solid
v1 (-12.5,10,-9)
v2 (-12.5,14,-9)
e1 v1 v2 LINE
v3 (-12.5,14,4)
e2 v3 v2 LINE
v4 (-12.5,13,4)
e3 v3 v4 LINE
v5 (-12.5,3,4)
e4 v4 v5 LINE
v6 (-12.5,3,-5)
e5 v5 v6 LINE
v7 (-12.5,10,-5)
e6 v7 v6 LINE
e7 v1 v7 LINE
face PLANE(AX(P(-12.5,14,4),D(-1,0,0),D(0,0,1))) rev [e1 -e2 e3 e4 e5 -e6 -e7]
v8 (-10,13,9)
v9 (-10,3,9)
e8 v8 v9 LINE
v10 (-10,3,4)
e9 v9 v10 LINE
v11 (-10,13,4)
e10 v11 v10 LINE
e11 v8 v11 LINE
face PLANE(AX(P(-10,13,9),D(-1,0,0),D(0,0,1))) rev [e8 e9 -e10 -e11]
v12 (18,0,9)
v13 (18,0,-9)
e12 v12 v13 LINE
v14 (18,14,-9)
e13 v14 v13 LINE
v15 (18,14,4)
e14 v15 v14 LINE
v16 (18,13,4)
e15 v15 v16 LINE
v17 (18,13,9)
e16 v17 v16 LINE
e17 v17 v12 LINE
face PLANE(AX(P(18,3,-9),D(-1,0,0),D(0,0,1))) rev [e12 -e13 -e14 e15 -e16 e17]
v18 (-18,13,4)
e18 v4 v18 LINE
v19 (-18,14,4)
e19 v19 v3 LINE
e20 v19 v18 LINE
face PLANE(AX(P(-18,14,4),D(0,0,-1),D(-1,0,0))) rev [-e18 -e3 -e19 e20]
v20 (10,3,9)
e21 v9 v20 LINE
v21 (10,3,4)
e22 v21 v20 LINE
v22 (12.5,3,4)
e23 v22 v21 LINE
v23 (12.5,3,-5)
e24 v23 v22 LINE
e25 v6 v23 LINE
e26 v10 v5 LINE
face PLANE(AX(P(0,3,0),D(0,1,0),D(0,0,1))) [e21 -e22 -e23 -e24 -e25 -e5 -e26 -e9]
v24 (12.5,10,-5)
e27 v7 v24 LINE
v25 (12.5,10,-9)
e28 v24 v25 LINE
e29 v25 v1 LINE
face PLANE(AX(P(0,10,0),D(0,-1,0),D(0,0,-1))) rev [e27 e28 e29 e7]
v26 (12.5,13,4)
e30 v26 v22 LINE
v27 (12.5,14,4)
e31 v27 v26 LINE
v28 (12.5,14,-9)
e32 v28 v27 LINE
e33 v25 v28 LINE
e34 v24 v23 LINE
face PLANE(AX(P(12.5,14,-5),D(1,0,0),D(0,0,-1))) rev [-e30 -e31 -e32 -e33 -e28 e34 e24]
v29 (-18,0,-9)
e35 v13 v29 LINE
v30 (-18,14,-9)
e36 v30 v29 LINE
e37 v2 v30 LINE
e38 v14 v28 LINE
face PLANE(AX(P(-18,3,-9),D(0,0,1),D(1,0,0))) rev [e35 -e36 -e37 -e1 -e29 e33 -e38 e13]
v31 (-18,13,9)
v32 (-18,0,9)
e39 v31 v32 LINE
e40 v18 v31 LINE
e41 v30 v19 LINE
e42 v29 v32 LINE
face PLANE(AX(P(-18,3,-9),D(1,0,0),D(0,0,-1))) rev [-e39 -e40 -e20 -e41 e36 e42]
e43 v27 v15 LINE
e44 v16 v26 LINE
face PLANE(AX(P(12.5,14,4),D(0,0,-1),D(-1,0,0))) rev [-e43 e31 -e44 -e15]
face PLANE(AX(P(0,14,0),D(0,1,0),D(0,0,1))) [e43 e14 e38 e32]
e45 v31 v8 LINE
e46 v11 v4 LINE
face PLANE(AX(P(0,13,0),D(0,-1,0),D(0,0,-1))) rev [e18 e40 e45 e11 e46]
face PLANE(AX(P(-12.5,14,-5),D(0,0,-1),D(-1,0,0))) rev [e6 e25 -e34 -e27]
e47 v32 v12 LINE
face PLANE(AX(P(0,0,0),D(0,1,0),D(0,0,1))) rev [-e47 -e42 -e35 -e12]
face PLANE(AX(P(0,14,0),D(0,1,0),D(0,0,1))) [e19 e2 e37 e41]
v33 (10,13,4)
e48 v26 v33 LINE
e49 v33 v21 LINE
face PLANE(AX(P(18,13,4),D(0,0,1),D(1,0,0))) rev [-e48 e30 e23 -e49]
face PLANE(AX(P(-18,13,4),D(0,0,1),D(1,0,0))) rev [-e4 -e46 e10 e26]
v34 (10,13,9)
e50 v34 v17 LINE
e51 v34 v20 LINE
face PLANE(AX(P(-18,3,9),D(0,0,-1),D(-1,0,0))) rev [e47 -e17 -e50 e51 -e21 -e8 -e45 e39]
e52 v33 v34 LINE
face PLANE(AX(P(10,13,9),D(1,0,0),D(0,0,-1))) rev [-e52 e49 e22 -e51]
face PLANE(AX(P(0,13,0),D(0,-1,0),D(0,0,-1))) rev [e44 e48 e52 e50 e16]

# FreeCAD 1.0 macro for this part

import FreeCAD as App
import Part
import Sketcher

doc = App.newDocument("Part")
params = doc.addObject("Spreadsheet::Sheet", "Params")
for row, (alias, value) in enumerate([
    ("sketch1_width", "36 mm"),
    ("sketch1_height", "18 mm"),
    ("pad1_length", "3 mm"),
    ("sketch2_width", "8 mm"),
    ("sketch2_height", "5 mm"),
    ("pad2_length", "10 mm"),
    ("sketch3_width", "25 mm"),
    ("sketch3_width2", "36 mm"),
    ("sketch3_height", "13 mm"),
    ("sketch3_height2", "9 mm"),
    ("pad3_length", "11 mm"),
    ("sketch4_width", "25 mm"),
    ("sketch4_height", "4 mm"),
    ("pocket1_length", "4 mm"),
], start=1):
    params.set(f"A{row}", alias)
    params.set(f"B{row}", "=" + value)
    params.setAlias(f"B{row}", alias)

body = doc.addObject("PartDesign::Body", "Body")

sketch1 = body.newObject("Sketcher::SketchObject", "Sketch")
sketch1.AttachmentSupport = (doc.getObject("XZ_Plane"), [""])
sketch1.MapMode = "FlatFace"
sketch1.addGeometry(Part.LineSegment(App.Vector(-18, -9, 0), App.Vector(-18, 9, 0)), False)
sketch1.addGeometry(Part.LineSegment(App.Vector(-18, 9, 0), App.Vector(18, 9, 0)), False)
sketch1.addGeometry(Part.LineSegment(App.Vector(18, 9, 0), App.Vector(18, -9, 0)), False)
sketch1.addGeometry(Part.LineSegment(App.Vector(18, -9, 0), App.Vector(-18, -9, 0)), False)
sketch1.addConstraint(Sketcher.Constraint("Coincident", 0, 2, 1, 1))
sketch1.addConstraint(Sketcher.Constraint("Coincident", 1, 2, 2, 1))
sketch1.addConstraint(Sketcher.Constraint("Coincident", 2, 2, 3, 1))
sketch1.addConstraint(Sketcher.Constraint("Coincident", 3, 2, 0, 1))
sketch1.addConstraint(Sketcher.Constraint("Vertical", 0))
sketch1.addConstraint(Sketcher.Constraint("Horizontal", 1))
sketch1.addConstraint(Sketcher.Constraint("Vertical", 2))
sketch1.addConstraint(Sketcher.Constraint("Horizontal", 3))
sketch1.addConstraint(Sketcher.Constraint("Symmetric", 0, 2, 2, 2, -1, 1))
sketch1.addConstraint(Sketcher.Constraint("DistanceX", 1, 1, 1, 2, 36.0))
sketch1.addConstraint(Sketcher.Constraint("DistanceY", 0, 1, 0, 2, 18.0))
sketch1.setExpression("Constraints[9]", "Params.sketch1_width")
sketch1.setExpression("Constraints[10]", "Params.sketch1_height")
pad1 = body.newObject("PartDesign::Pad", "Pad")
pad1.Profile = sketch1
pad1.setExpression("Length", "Params.pad1_length")
pad1.Reversed = True

sketch2 = body.newObject("Sketcher::SketchObject", "Sketch001")
sketch2.AttachmentSupport = (doc.getObject("XZ_Plane"), [""])
sketch2.MapMode = "FlatFace"
sketch2.AttachmentOffset = App.Placement(App.Vector(0, 0, -3), App.Rotation())
sketch2.addGeometry(Part.LineSegment(App.Vector(-18, 4, 0), App.Vector(-18, 9, 0)), False)
sketch2.addGeometry(Part.LineSegment(App.Vector(-18, 9, 0), App.Vector(-10, 9, 0)), False)
sketch2.addGeometry(Part.LineSegment(App.Vector(-10, 9, 0), App.Vector(-10, 4, 0)), False)
sketch2.addGeometry(Part.LineSegment(App.Vector(-10, 4, 0), App.Vector(-18, 4, 0)), False)
sketch2.addGeometry(Part.LineSegment(App.Vector(10, 4, 0), App.Vector(10, 9, 0)), False)
sketch2.addGeometry(Part.LineSegment(App.Vector(10, 9, 0), App.Vector(18, 9, 0)), False)
sketch2.addGeometry(Part.LineSegment(App.Vector(18, 9, 0), App.Vector(18, 4, 0)), False)
sketch2.addGeometry(Part.LineSegment(App.Vector(18, 4, 0), App.Vector(10, 4, 0)), False)
sketch2.addConstraint(Sketcher.Constraint("Coincident", 0, 2, 1, 1))
sketch2.addConstraint(Sketcher.Constraint("Coincident", 1, 2, 2, 1))
sketch2.addConstraint(Sketcher.Constraint("Coincident", 2, 2, 3, 1))
sketch2.addConstraint(Sketcher.Constraint("Coincident", 3, 2, 0, 1))
sketch2.addConstraint(Sketcher.Constraint("Coincident", 4, 2, 5, 1))
sketch2.addConstraint(Sketcher.Constraint("Coincident", 5, 2, 6, 1))
sketch2.addConstraint(Sketcher.Constraint("Coincident", 6, 2, 7, 1))
sketch2.addConstraint(Sketcher.Constraint("Coincident", 7, 2, 4, 1))
sketch2.addConstraint(Sketcher.Constraint("Vertical", 0))
sketch2.addConstraint(Sketcher.Constraint("Horizontal", 1))
sketch2.addConstraint(Sketcher.Constraint("Vertical", 2))
sketch2.addConstraint(Sketcher.Constraint("Horizontal", 3))
sketch2.addConstraint(Sketcher.Constraint("Vertical", 4))
sketch2.addConstraint(Sketcher.Constraint("Horizontal", 5))
sketch2.addConstraint(Sketcher.Constraint("Vertical", 6))
sketch2.addConstraint(Sketcher.Constraint("Horizontal", 7))
sketch2.addConstraint(Sketcher.Constraint("Symmetric", 1, 2, 4, 2, -2))
sketch2.addConstraint(Sketcher.Constraint("Symmetric", 3, 2, 6, 2, -2))
sketch2.addConstraint(Sketcher.Constraint("DistanceX", 1, 1, 1, 2, 8.0))
sketch2.addConstraint(Sketcher.Constraint("DistanceY", 0, 1, 0, 2, 5.0))
sketch2.addConstraint(Sketcher.Constraint("DistanceX", 0, 2, -1, 1, 18.0))
sketch2.addConstraint(Sketcher.Constraint("DistanceY", -1, 1, 0, 2, 9.0))
sketch2.setExpression("Constraints[18]", "Params.sketch2_width")
sketch2.setExpression("Constraints[19]", "Params.sketch2_height")
pad2 = body.newObject("PartDesign::Pad", "Pad001")
pad2.Profile = sketch2
pad2.setExpression("Length", "Params.pad2_length")
pad2.Reversed = True

sketch3 = body.newObject("Sketcher::SketchObject", "Sketch002")
sketch3.AttachmentSupport = (doc.getObject("XZ_Plane"), [""])
sketch3.MapMode = "FlatFace"
sketch3.AttachmentOffset = App.Placement(App.Vector(0, 0, -3), App.Rotation())
sketch3.addGeometry(Part.LineSegment(App.Vector(-18, -9, 0), App.Vector(-18, 4, 0)), False)
sketch3.addGeometry(Part.LineSegment(App.Vector(-18, 4, 0), App.Vector(-12, 4, 0)), False)
sketch3.addGeometry(Part.LineSegment(App.Vector(-12, 4, 0), App.Vector(-12, -5, 0)), False)
sketch3.addGeometry(Part.LineSegment(App.Vector(-12, -5, 0), App.Vector(12, -5, 0)), False)
sketch3.addGeometry(Part.LineSegment(App.Vector(12, -5, 0), App.Vector(12, 4, 0)), False)
sketch3.addGeometry(Part.LineSegment(App.Vector(12, 4, 0), App.Vector(18, 4, 0)), False)
sketch3.addGeometry(Part.LineSegment(App.Vector(18, 4, 0), App.Vector(18, -9, 0)), False)
sketch3.addGeometry(Part.LineSegment(App.Vector(18, -9, 0), App.Vector(-18, -9, 0)), False)
sketch3.addConstraint(Sketcher.Constraint("Coincident", 0, 2, 1, 1))
sketch3.addConstraint(Sketcher.Constraint("Coincident", 1, 2, 2, 1))
sketch3.addConstraint(Sketcher.Constraint("Coincident", 2, 2, 3, 1))
sketch3.addConstraint(Sketcher.Constraint("Coincident", 3, 2, 4, 1))
sketch3.addConstraint(Sketcher.Constraint("Coincident", 4, 2, 5, 1))
sketch3.addConstraint(Sketcher.Constraint("Coincident", 5, 2, 6, 1))
sketch3.addConstraint(Sketcher.Constraint("Coincident", 6, 2, 7, 1))
sketch3.addConstraint(Sketcher.Constraint("Coincident", 7, 2, 0, 1))
sketch3.addConstraint(Sketcher.Constraint("Vertical", 0))
sketch3.addConstraint(Sketcher.Constraint("Horizontal", 1))
sketch3.addConstraint(Sketcher.Constraint("Vertical", 2))
sketch3.addConstraint(Sketcher.Constraint("Horizontal", 3))
sketch3.addConstraint(Sketcher.Constraint("Vertical", 4))
sketch3.addConstraint(Sketcher.Constraint("Horizontal", 5))
sketch3.addConstraint(Sketcher.Constraint("Vertical", 6))
sketch3.addConstraint(Sketcher.Constraint("Horizontal", 7))
sketch3.addConstraint(Sketcher.Constraint("Symmetric", 1, 2, 4, 2, -2))
sketch3.addConstraint(Sketcher.Constraint("Equal", 1, 5))
sketch3.addConstraint(Sketcher.Constraint("DistanceX", 3, 1, 3, 2, 25.0))
sketch3.addConstraint(Sketcher.Constraint("DistanceX", 7, 2, 7, 1, 36.0))
sketch3.addConstraint(Sketcher.Constraint("DistanceY", 0, 1, 0, 2, 13.0))
sketch3.addConstraint(Sketcher.Constraint("DistanceY", 2, 2, 2, 1, 9.0))
sketch3.addConstraint(Sketcher.Constraint("DistanceY", -1, 1, 0, 2, 4.0))
sketch3.setExpression("Constraints[18]", "Params.sketch3_width")
sketch3.setExpression("Constraints[19]", "Params.sketch3_width2")
sketch3.setExpression("Constraints[20]", "Params.sketch3_height")
sketch3.setExpression("Constraints[21]", "Params.sketch3_height2")
pad3 = body.newObject("PartDesign::Pad", "Pad002")
pad3.Profile = sketch3
pad3.setExpression("Length", "Params.pad3_length")
pad3.Reversed = True

sketch4 = body.newObject("Sketcher::SketchObject", "Sketch003")
sketch4.AttachmentSupport = (doc.getObject("XZ_Plane"), [""])
sketch4.MapMode = "FlatFace"
sketch4.AttachmentOffset = App.Placement(App.Vector(0, 0, -14), App.Rotation())
sketch4.addGeometry(Part.LineSegment(App.Vector(-12.5, -9, 0), App.Vector(-12.5, -5, 0)), False)
sketch4.addGeometry(Part.LineSegment(App.Vector(-12.5, -5, 0), App.Vector(12.5, -5, 0)), False)
sketch4.addGeometry(Part.LineSegment(App.Vector(12.5, -5, 0), App.Vector(12.5, -9, 0)), False)
sketch4.addGeometry(Part.LineSegment(App.Vector(12.5, -9, 0), App.Vector(-12.5, -9, 0)), False)
sketch4.addConstraint(Sketcher.Constraint("Coincident", 0, 2, 1, 1))
sketch4.addConstraint(Sketcher.Constraint("Coincident", 1, 2, 2, 1))
sketch4.addConstraint(Sketcher.Constraint("Coincident", 2, 2, 3, 1))
sketch4.addConstraint(Sketcher.Constraint("Coincident", 3, 2, 0, 1))
sketch4.addConstraint(Sketcher.Constraint("Vertical", 0))
sketch4.addConstraint(Sketcher.Constraint("Horizontal", 1))
sketch4.addConstraint(Sketcher.Constraint("Vertical", 2))
sketch4.addConstraint(Sketcher.Constraint("Horizontal", 3))
sketch4.addConstraint(Sketcher.Constraint("DistanceX", 1, 1, 1, 2, 25.0))
sketch4.addConstraint(Sketcher.Constraint("DistanceY", 0, 1, 0, 2, 4.0))
sketch4.addConstraint(Sketcher.Constraint("DistanceY", 0, 2, -1, 1, 5.0))
sketch4.addConstraint(Sketcher.Constraint("DistanceX", 0, 2, -1, 1, 12.5))
sketch4.setExpression("Constraints[8]", "Params.sketch4_width")
sketch4.setExpression("Constraints[9]", "Params.sketch4_height")
pocket1 = body.newObject("PartDesign::Pocket", "Pocket")
pocket1.Profile = sketch4
pocket1.setExpression("Length", "Params.pocket1_length")
pocket1.Reversed = True

doc.recompute()
